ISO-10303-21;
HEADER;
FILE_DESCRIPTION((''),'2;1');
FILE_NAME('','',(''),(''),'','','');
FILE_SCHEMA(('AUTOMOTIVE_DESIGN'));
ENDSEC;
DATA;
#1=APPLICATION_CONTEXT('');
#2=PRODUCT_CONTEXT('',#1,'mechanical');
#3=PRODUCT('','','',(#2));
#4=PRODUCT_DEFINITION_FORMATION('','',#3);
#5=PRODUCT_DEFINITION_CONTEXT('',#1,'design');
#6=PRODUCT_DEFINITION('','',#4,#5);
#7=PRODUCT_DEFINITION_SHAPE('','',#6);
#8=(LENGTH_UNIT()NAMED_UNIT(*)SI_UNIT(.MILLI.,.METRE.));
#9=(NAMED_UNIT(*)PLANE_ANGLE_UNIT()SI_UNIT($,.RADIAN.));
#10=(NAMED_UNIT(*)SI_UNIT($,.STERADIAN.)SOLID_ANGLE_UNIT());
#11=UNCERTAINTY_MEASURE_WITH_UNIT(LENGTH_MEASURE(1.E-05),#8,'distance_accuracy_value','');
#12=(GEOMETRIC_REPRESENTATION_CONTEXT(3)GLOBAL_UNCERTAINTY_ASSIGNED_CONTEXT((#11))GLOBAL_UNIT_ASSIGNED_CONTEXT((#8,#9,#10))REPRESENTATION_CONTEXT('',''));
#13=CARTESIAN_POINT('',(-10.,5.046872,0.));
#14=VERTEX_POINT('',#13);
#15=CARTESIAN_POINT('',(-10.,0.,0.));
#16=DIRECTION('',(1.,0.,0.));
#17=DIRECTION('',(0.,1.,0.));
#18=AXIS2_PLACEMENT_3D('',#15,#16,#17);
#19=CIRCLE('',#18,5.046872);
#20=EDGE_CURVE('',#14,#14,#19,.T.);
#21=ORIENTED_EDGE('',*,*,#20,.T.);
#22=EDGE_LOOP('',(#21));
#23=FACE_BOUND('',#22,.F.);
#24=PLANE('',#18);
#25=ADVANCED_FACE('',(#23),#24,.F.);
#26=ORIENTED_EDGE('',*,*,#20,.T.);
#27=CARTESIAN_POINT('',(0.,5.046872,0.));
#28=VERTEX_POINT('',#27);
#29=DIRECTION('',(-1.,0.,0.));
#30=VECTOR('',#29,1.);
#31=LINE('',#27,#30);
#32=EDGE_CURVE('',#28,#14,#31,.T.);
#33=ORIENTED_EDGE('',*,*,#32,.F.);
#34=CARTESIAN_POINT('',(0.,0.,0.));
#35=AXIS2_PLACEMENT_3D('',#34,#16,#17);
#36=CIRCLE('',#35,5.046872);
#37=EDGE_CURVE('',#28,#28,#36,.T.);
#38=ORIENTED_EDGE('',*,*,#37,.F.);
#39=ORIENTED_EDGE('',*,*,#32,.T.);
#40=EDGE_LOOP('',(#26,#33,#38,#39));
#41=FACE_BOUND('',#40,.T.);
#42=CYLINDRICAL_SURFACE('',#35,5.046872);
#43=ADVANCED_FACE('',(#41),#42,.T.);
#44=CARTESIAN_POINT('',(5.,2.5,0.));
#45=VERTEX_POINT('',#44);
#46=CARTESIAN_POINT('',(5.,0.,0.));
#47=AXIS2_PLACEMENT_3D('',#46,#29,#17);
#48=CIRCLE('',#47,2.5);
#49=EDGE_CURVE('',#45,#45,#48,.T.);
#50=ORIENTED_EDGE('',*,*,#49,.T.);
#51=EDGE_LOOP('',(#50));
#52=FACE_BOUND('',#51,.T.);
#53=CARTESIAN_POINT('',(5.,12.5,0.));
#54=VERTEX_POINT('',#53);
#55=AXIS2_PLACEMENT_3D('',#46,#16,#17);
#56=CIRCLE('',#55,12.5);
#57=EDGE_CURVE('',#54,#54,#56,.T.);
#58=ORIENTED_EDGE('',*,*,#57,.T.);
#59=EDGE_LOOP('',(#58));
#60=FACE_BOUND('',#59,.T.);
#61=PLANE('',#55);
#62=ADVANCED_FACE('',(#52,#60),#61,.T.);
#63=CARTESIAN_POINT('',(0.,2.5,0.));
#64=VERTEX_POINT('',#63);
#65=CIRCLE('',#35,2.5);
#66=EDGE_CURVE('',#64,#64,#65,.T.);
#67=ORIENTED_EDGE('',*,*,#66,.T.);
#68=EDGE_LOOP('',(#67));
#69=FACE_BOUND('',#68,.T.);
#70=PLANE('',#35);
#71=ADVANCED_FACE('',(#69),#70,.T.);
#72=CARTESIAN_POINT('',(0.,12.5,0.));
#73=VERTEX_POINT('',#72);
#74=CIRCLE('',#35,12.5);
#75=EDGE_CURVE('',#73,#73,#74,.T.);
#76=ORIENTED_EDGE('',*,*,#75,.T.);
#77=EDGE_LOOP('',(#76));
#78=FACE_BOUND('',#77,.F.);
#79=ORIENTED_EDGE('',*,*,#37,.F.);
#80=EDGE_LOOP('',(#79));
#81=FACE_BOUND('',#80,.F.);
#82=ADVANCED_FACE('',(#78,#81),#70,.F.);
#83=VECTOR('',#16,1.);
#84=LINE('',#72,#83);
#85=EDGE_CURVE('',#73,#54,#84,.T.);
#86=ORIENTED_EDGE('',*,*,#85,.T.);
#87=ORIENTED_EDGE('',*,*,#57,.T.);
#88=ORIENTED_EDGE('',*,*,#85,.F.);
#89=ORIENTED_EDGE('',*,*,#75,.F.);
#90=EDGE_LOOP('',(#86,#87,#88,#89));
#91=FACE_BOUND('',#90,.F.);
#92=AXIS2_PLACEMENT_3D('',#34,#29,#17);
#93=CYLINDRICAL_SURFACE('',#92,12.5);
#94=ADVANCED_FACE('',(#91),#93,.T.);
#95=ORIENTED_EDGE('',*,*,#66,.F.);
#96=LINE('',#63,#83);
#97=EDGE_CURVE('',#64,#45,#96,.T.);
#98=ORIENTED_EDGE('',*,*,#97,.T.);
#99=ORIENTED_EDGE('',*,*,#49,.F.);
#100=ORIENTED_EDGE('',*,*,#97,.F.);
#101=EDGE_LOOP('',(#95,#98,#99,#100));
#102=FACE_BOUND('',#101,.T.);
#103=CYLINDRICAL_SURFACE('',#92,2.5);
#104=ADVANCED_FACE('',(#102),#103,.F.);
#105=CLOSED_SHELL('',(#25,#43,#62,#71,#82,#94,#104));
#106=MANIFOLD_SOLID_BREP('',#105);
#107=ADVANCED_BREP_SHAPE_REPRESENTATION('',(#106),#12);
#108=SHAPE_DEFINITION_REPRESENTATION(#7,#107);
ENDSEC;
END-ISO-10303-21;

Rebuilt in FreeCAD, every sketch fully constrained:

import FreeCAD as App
import Part
import Sketcher
from FreeCAD import Vector
Q = App.Units.Quantity

doc = App.newDocument("Part")
body = doc.addObject("PartDesign::Body", "Body")

# Sketch on YZ plane
sketch1 = body.newObject("Sketcher::SketchObject", "Sketch")
sketch1.AttachmentSupport = (doc.getObject("YZ_Plane"), [""])
sketch1.MapMode = "FlatFace"
sketch1.addGeometry(Part.Circle(Vector(0, 0, 0), Vector(0, 0, 1), 12), False)
sketch1.addConstraint(Sketcher.Constraint("Coincident", 0, 3, -1, 1))
sketch1.addConstraint(Sketcher.Constraint("Diameter", 0, Q("25 mm")))
pad1 = body.newObject("PartDesign::Pad", "Pad")
pad1.Profile = sketch1
pad1.Length = 5

# Sketch on YZ plane
sketch2 = body.newObject("Sketcher::SketchObject", "Sketch001")
sketch2.AttachmentSupport = (doc.getObject("YZ_Plane"), [""])
sketch2.MapMode = "FlatFace"
sketch2.addGeometry(Part.Circle(Vector(0, 0, 0), Vector(0, 0, 1), 2.5), False)
sketch2.addConstraint(Sketcher.Constraint("Coincident", 0, 3, -1, 1))
sketch2.addConstraint(Sketcher.Constraint("Diameter", 0, Q("5 mm")))
pocket1 = body.newObject("PartDesign::Pocket", "Pocket")
pocket1.Profile = sketch2
pocket1.Length = 10
pocket1.Reversed = True

# Sketch on YZ plane
sketch3 = body.newObject("Sketcher::SketchObject", "Sketch002")
sketch3.AttachmentSupport = (doc.getObject("YZ_Plane"), [""])
sketch3.MapMode = "FlatFace"
sketch3.addGeometry(Part.Circle(Vector(0, 0, 0), Vector(0, 0, 1), 2.5), False)
sketch3.addConstraint(Sketcher.Constraint("Coincident", 0, 3, -1, 1))
sketch3.addConstraint(Sketcher.Constraint("Diameter", 0, Q("5 mm")))
pocket2 = body.newObject("PartDesign::Pocket", "Pocket001")
pocket2.Profile = sketch3
pocket2.Length = 3
pocket2.Reversed = True

# Sketch on YZ plane
sketch4 = body.newObject("Sketcher::SketchObject", "Sketch003")
sketch4.AttachmentSupport = (doc.getObject("YZ_Plane"), [""])
sketch4.MapMode = "FlatFace"
sketch4.addGeometry(Part.Circle(Vector(0, 0, 0), Vector(0, 0, 1), 5), False)
sketch4.addConstraint(Sketcher.Constraint("Coincident", 0, 3, -1, 1))
sketch4.addConstraint(Sketcher.Constraint("Diameter", 0, Q("10.093744 mm")))
pad2 = body.newObject("PartDesign::Pad", "Pad001")
pad2.Profile = sketch4
pad2.Length = 10
pad2.Reversed = True

doc.recompute()
